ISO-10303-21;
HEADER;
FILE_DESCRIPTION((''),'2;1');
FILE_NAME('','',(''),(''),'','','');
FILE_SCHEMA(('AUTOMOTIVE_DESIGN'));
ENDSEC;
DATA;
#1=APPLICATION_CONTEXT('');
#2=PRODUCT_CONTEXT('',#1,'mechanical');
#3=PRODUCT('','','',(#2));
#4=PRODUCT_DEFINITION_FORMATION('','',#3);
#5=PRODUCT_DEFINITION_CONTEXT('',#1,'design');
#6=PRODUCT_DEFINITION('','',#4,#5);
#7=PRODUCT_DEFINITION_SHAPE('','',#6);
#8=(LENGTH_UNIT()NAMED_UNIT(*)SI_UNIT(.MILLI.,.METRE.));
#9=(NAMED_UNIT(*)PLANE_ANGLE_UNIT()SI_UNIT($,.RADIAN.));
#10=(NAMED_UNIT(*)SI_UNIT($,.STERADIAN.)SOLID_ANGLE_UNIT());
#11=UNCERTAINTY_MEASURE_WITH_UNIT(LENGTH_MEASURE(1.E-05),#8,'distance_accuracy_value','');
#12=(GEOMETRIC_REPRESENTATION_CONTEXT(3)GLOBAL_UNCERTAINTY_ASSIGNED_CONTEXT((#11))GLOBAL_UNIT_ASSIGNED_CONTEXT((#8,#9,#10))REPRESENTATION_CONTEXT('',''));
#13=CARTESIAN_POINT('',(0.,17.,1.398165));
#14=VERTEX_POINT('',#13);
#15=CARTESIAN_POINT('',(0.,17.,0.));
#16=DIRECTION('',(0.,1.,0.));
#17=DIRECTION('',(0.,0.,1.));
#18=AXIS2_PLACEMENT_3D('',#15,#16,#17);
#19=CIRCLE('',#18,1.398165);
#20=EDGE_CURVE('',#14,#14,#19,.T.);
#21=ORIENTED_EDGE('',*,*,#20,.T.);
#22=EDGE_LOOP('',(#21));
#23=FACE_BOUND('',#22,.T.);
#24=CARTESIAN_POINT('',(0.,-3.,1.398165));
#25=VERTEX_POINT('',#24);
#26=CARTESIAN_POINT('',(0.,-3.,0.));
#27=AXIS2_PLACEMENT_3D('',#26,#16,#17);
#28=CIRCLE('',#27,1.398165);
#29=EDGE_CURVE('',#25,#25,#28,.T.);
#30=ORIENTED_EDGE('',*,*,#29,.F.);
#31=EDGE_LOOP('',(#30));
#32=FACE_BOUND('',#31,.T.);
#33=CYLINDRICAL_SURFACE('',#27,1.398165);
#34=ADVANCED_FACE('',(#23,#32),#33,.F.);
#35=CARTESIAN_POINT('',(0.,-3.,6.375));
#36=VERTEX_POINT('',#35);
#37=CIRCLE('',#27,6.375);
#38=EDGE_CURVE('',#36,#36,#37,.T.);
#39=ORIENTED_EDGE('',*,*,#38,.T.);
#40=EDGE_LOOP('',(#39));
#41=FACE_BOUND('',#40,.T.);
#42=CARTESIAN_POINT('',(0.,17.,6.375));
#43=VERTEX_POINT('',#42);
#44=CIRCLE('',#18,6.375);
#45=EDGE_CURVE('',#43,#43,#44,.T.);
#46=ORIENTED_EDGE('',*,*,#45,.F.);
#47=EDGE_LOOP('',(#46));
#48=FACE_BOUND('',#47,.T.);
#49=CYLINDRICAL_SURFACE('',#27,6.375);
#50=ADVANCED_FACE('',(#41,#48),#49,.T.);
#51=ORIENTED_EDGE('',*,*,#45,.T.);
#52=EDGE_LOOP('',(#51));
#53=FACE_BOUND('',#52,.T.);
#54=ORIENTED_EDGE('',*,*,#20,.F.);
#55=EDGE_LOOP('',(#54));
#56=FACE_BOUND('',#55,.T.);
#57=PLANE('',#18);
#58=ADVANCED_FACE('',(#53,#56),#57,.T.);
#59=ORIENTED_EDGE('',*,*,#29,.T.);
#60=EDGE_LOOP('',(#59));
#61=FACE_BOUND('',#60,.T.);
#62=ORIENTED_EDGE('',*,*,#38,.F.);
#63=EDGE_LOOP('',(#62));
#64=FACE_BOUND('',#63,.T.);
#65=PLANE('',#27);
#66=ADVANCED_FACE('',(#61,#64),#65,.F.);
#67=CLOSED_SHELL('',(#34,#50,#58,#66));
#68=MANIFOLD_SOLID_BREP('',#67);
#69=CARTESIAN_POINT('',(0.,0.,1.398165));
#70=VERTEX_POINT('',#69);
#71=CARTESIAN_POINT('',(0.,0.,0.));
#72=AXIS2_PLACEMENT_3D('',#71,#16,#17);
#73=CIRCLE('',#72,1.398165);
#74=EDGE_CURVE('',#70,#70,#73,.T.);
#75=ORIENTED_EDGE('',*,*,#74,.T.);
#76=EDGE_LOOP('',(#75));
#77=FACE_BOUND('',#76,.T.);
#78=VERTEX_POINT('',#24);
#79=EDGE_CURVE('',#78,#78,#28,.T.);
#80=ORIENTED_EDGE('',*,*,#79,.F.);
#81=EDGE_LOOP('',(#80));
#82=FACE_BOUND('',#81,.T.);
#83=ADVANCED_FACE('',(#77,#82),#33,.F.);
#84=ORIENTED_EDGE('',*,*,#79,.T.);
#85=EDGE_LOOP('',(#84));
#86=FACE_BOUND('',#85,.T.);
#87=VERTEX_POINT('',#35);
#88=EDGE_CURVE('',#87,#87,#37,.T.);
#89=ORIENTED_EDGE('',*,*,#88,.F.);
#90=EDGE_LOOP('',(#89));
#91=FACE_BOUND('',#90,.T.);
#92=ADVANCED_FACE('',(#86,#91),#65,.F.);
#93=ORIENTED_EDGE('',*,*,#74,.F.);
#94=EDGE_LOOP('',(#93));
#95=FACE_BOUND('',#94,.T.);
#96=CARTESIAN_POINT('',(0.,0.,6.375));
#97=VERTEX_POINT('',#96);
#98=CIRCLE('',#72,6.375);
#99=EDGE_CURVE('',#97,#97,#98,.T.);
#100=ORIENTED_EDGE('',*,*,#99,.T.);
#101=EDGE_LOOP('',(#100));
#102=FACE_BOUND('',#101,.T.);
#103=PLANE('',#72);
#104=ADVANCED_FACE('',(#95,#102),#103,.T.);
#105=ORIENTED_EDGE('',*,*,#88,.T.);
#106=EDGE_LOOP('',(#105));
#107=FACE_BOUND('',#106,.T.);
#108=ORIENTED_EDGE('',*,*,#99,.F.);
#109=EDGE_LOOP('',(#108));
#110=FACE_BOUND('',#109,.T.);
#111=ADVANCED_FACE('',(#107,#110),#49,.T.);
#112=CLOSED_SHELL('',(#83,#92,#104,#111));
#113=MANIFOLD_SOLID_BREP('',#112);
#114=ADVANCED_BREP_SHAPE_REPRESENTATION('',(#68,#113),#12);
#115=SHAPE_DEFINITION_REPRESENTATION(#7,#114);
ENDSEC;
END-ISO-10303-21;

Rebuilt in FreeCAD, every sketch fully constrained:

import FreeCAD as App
import Part
import Sketcher
Q = App.Units.Quantity

doc = App.newDocument("Part")
body = doc.addObject("PartDesign::Body", "Body")

# Sketch on XZ plane
sketch1 = doc.addObject("Sketcher::SketchObject", "Sketch")
body.addObject(sketch1)
sketch1.AttachmentSupport = (doc.XZ_Plane, [""])
sketch1.MapMode = "FlatFace"
sketch1.addGeometry([
    Part.Circle(App.Vector(0, 0, 0), App.Vector(0, 0, 1), 6.375),
    Part.Circle(App.Vector(0, 0, 0), App.Vector(0, 0, 1), 1.398165),
], False)
sketch1.addConstraint([
    Sketcher.Constraint("Coincident", 0, 3, -1, 1),
    Sketcher.Constraint("Coincident", 1, 3, -1, 1),
    Sketcher.Constraint("Diameter", 0, Q("12.75 mm")),
    Sketcher.Constraint("Diameter", 1, Q("2.79633 mm")),
])
pad1 = doc.addObject("PartDesign::Pad", "Pad")
body.addObject(pad1)
pad1.Profile = sketch1
pad1.Type = "TwoLengths"
pad1.Length = 17
pad1.Length2 = 3
pad1.Reversed = True
body2 = doc.addObject("PartDesign::Body", "Body001")

# Sketch on XZ plane
sketch2 = doc.addObject("Sketcher::SketchObject", "Sketch001")
body2.addObject(sketch2)
sketch2.AttachmentSupport = (doc.getObject("XZ_Plane001"), [""])
sketch2.MapMode = "FlatFace"
sketch2.addGeometry([
    Part.Circle(App.Vector(0, 0, 0), App.Vector(0, 0, 1), 6.375),
    Part.Circle(App.Vector(0, 0, 0), App.Vector(0, 0, 1), 1.398165),
], False)
sketch2.addConstraint([
    Sketcher.Constraint("Coincident", 0, 3, -1, 1),
    Sketcher.Constraint("Coincident", 1, 3, -1, 1),
    Sketcher.Constraint("Diameter", 0, Q("12.75 mm")),
    Sketcher.Constraint("Diameter", 1, Q("2.79633 mm")),
])
pad2 = doc.addObject("PartDesign::Pad", "Pad001")
body2.addObject(pad2)
pad2.Profile = sketch2
pad2.Length = 3

doc.recompute()
